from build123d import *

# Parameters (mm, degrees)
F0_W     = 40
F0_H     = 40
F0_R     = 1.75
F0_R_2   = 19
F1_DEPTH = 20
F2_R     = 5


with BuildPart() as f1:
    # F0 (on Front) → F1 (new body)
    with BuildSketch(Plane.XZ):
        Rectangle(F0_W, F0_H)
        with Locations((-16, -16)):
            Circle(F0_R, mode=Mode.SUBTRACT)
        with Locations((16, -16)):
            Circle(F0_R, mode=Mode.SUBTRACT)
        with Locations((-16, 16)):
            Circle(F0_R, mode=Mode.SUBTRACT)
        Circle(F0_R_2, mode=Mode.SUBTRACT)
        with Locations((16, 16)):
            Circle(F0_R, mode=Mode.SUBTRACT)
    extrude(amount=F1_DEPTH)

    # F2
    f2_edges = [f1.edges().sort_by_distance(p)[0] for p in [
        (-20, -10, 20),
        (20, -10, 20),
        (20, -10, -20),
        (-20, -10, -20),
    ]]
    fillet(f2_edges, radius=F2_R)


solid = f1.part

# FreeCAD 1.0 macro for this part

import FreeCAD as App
import Part
import Sketcher


def edges_at(feature, points):
    """Names of the edges that pass closest to the given points."""
    edges = feature.Shape.Edges
    near = lambda p: min(range(len(edges)), key=lambda i: edges[i].distToShape(Part.Vertex(*p))[0])
    return sorted({f"Edge{near(p) + 1}" for p in points})


def add_polygon(sketch, points):
    """Adds a closed chain of lines whose ends are joined by coincident constraints."""
    first, n = sketch.GeometryCount, len(points)
    for a, b in zip(points, points[1:] + points[:1]):
        sketch.addGeometry(Part.LineSegment(App.Vector(*a, 0), App.Vector(*b, 0)), False)
    for i in range(n):
        sketch.addConstraint(Sketcher.Constraint("Coincident", first + i, 2, first + (i + 1) % n, 1))

doc = App.newDocument("Part")
body = doc.addObject("PartDesign::Body", "Body")

sketch1 = body.newObject("Sketcher::SketchObject", "Sketch")
sketch1.AttachmentSupport = (doc.getObject("XZ_Plane"), [""])
sketch1.MapMode = "FlatFace"
add_polygon(sketch1, [(-20, 20), (-20, -20), (20, -20), (20, 20)])
sketch1.addGeometry(Part.Circle(App.Vector(-16, -16, 0), App.Vector(0, 0, 1), 1.8), False)
sketch1.addGeometry(Part.Circle(App.Vector(16, -16, 0), App.Vector(0, 0, 1), 1.8), False)
sketch1.addGeometry(Part.Circle(App.Vector(-16, 16, 0), App.Vector(0, 0, 1), 1.8), False)
sketch1.addGeometry(Part.Circle(App.Vector(0, 0, 0), App.Vector(0, 0, 1), 19), False)
sketch1.addGeometry(Part.Circle(App.Vector(16, 16, 0), App.Vector(0, 0, 1), 1.8), False)
sketch1.addConstraint([
    Sketcher.Constraint("Vertical", 0),
    Sketcher.Constraint("Horizontal", 1),
    Sketcher.Constraint("Vertical", 2),
    Sketcher.Constraint("Horizontal", 3),
    Sketcher.Constraint("Coincident", 7, 3, -1, 1),
    Sketcher.Constraint("Equal", 4, 5),
    Sketcher.Constraint("Equal", 5, 6),
    Sketcher.Constraint("Equal", 6, 8),
    Sketcher.Constraint("Symmetric", 5, 3, 6, 3, -1, 1),
    Sketcher.Constraint("Symmetric", 4, 3, 8, 3, -1, 1),
    Sketcher.Constraint("Symmetric", 0, 2, 2, 2, -1, 1),
    Sketcher.Constraint("Symmetric", 4, 3, 5, 3, -2),
    Sketcher.Constraint("Equal", 3, 0),
    Sketcher.Constraint("Diameter", 7, 38.0),
    Sketcher.Constraint("Diameter", 4, 3.5),
    Sketcher.Constraint("DistanceX", 1, 1, 1, 2, 40.0),
    Sketcher.Constraint("DistanceX", 4, 3, -1, 1, 16.0),
    Sketcher.Constraint("DistanceY", 4, 3, -1, 1, 16.0),
])
pad1 = body.newObject("PartDesign::Pad", "Pad")
pad1.Profile = sketch1
pad1.Length = 20
doc.recompute()

fillet = body.newObject("PartDesign::Fillet", "Fillet")
fillet.Base = (pad1, edges_at(pad1, [
    (-20, -10, 20),
    (20, -10, 20),
    (20, -10, -20),
    (-20, -10, -20),
]))
fillet.Radius = 5

doc.recompute()
